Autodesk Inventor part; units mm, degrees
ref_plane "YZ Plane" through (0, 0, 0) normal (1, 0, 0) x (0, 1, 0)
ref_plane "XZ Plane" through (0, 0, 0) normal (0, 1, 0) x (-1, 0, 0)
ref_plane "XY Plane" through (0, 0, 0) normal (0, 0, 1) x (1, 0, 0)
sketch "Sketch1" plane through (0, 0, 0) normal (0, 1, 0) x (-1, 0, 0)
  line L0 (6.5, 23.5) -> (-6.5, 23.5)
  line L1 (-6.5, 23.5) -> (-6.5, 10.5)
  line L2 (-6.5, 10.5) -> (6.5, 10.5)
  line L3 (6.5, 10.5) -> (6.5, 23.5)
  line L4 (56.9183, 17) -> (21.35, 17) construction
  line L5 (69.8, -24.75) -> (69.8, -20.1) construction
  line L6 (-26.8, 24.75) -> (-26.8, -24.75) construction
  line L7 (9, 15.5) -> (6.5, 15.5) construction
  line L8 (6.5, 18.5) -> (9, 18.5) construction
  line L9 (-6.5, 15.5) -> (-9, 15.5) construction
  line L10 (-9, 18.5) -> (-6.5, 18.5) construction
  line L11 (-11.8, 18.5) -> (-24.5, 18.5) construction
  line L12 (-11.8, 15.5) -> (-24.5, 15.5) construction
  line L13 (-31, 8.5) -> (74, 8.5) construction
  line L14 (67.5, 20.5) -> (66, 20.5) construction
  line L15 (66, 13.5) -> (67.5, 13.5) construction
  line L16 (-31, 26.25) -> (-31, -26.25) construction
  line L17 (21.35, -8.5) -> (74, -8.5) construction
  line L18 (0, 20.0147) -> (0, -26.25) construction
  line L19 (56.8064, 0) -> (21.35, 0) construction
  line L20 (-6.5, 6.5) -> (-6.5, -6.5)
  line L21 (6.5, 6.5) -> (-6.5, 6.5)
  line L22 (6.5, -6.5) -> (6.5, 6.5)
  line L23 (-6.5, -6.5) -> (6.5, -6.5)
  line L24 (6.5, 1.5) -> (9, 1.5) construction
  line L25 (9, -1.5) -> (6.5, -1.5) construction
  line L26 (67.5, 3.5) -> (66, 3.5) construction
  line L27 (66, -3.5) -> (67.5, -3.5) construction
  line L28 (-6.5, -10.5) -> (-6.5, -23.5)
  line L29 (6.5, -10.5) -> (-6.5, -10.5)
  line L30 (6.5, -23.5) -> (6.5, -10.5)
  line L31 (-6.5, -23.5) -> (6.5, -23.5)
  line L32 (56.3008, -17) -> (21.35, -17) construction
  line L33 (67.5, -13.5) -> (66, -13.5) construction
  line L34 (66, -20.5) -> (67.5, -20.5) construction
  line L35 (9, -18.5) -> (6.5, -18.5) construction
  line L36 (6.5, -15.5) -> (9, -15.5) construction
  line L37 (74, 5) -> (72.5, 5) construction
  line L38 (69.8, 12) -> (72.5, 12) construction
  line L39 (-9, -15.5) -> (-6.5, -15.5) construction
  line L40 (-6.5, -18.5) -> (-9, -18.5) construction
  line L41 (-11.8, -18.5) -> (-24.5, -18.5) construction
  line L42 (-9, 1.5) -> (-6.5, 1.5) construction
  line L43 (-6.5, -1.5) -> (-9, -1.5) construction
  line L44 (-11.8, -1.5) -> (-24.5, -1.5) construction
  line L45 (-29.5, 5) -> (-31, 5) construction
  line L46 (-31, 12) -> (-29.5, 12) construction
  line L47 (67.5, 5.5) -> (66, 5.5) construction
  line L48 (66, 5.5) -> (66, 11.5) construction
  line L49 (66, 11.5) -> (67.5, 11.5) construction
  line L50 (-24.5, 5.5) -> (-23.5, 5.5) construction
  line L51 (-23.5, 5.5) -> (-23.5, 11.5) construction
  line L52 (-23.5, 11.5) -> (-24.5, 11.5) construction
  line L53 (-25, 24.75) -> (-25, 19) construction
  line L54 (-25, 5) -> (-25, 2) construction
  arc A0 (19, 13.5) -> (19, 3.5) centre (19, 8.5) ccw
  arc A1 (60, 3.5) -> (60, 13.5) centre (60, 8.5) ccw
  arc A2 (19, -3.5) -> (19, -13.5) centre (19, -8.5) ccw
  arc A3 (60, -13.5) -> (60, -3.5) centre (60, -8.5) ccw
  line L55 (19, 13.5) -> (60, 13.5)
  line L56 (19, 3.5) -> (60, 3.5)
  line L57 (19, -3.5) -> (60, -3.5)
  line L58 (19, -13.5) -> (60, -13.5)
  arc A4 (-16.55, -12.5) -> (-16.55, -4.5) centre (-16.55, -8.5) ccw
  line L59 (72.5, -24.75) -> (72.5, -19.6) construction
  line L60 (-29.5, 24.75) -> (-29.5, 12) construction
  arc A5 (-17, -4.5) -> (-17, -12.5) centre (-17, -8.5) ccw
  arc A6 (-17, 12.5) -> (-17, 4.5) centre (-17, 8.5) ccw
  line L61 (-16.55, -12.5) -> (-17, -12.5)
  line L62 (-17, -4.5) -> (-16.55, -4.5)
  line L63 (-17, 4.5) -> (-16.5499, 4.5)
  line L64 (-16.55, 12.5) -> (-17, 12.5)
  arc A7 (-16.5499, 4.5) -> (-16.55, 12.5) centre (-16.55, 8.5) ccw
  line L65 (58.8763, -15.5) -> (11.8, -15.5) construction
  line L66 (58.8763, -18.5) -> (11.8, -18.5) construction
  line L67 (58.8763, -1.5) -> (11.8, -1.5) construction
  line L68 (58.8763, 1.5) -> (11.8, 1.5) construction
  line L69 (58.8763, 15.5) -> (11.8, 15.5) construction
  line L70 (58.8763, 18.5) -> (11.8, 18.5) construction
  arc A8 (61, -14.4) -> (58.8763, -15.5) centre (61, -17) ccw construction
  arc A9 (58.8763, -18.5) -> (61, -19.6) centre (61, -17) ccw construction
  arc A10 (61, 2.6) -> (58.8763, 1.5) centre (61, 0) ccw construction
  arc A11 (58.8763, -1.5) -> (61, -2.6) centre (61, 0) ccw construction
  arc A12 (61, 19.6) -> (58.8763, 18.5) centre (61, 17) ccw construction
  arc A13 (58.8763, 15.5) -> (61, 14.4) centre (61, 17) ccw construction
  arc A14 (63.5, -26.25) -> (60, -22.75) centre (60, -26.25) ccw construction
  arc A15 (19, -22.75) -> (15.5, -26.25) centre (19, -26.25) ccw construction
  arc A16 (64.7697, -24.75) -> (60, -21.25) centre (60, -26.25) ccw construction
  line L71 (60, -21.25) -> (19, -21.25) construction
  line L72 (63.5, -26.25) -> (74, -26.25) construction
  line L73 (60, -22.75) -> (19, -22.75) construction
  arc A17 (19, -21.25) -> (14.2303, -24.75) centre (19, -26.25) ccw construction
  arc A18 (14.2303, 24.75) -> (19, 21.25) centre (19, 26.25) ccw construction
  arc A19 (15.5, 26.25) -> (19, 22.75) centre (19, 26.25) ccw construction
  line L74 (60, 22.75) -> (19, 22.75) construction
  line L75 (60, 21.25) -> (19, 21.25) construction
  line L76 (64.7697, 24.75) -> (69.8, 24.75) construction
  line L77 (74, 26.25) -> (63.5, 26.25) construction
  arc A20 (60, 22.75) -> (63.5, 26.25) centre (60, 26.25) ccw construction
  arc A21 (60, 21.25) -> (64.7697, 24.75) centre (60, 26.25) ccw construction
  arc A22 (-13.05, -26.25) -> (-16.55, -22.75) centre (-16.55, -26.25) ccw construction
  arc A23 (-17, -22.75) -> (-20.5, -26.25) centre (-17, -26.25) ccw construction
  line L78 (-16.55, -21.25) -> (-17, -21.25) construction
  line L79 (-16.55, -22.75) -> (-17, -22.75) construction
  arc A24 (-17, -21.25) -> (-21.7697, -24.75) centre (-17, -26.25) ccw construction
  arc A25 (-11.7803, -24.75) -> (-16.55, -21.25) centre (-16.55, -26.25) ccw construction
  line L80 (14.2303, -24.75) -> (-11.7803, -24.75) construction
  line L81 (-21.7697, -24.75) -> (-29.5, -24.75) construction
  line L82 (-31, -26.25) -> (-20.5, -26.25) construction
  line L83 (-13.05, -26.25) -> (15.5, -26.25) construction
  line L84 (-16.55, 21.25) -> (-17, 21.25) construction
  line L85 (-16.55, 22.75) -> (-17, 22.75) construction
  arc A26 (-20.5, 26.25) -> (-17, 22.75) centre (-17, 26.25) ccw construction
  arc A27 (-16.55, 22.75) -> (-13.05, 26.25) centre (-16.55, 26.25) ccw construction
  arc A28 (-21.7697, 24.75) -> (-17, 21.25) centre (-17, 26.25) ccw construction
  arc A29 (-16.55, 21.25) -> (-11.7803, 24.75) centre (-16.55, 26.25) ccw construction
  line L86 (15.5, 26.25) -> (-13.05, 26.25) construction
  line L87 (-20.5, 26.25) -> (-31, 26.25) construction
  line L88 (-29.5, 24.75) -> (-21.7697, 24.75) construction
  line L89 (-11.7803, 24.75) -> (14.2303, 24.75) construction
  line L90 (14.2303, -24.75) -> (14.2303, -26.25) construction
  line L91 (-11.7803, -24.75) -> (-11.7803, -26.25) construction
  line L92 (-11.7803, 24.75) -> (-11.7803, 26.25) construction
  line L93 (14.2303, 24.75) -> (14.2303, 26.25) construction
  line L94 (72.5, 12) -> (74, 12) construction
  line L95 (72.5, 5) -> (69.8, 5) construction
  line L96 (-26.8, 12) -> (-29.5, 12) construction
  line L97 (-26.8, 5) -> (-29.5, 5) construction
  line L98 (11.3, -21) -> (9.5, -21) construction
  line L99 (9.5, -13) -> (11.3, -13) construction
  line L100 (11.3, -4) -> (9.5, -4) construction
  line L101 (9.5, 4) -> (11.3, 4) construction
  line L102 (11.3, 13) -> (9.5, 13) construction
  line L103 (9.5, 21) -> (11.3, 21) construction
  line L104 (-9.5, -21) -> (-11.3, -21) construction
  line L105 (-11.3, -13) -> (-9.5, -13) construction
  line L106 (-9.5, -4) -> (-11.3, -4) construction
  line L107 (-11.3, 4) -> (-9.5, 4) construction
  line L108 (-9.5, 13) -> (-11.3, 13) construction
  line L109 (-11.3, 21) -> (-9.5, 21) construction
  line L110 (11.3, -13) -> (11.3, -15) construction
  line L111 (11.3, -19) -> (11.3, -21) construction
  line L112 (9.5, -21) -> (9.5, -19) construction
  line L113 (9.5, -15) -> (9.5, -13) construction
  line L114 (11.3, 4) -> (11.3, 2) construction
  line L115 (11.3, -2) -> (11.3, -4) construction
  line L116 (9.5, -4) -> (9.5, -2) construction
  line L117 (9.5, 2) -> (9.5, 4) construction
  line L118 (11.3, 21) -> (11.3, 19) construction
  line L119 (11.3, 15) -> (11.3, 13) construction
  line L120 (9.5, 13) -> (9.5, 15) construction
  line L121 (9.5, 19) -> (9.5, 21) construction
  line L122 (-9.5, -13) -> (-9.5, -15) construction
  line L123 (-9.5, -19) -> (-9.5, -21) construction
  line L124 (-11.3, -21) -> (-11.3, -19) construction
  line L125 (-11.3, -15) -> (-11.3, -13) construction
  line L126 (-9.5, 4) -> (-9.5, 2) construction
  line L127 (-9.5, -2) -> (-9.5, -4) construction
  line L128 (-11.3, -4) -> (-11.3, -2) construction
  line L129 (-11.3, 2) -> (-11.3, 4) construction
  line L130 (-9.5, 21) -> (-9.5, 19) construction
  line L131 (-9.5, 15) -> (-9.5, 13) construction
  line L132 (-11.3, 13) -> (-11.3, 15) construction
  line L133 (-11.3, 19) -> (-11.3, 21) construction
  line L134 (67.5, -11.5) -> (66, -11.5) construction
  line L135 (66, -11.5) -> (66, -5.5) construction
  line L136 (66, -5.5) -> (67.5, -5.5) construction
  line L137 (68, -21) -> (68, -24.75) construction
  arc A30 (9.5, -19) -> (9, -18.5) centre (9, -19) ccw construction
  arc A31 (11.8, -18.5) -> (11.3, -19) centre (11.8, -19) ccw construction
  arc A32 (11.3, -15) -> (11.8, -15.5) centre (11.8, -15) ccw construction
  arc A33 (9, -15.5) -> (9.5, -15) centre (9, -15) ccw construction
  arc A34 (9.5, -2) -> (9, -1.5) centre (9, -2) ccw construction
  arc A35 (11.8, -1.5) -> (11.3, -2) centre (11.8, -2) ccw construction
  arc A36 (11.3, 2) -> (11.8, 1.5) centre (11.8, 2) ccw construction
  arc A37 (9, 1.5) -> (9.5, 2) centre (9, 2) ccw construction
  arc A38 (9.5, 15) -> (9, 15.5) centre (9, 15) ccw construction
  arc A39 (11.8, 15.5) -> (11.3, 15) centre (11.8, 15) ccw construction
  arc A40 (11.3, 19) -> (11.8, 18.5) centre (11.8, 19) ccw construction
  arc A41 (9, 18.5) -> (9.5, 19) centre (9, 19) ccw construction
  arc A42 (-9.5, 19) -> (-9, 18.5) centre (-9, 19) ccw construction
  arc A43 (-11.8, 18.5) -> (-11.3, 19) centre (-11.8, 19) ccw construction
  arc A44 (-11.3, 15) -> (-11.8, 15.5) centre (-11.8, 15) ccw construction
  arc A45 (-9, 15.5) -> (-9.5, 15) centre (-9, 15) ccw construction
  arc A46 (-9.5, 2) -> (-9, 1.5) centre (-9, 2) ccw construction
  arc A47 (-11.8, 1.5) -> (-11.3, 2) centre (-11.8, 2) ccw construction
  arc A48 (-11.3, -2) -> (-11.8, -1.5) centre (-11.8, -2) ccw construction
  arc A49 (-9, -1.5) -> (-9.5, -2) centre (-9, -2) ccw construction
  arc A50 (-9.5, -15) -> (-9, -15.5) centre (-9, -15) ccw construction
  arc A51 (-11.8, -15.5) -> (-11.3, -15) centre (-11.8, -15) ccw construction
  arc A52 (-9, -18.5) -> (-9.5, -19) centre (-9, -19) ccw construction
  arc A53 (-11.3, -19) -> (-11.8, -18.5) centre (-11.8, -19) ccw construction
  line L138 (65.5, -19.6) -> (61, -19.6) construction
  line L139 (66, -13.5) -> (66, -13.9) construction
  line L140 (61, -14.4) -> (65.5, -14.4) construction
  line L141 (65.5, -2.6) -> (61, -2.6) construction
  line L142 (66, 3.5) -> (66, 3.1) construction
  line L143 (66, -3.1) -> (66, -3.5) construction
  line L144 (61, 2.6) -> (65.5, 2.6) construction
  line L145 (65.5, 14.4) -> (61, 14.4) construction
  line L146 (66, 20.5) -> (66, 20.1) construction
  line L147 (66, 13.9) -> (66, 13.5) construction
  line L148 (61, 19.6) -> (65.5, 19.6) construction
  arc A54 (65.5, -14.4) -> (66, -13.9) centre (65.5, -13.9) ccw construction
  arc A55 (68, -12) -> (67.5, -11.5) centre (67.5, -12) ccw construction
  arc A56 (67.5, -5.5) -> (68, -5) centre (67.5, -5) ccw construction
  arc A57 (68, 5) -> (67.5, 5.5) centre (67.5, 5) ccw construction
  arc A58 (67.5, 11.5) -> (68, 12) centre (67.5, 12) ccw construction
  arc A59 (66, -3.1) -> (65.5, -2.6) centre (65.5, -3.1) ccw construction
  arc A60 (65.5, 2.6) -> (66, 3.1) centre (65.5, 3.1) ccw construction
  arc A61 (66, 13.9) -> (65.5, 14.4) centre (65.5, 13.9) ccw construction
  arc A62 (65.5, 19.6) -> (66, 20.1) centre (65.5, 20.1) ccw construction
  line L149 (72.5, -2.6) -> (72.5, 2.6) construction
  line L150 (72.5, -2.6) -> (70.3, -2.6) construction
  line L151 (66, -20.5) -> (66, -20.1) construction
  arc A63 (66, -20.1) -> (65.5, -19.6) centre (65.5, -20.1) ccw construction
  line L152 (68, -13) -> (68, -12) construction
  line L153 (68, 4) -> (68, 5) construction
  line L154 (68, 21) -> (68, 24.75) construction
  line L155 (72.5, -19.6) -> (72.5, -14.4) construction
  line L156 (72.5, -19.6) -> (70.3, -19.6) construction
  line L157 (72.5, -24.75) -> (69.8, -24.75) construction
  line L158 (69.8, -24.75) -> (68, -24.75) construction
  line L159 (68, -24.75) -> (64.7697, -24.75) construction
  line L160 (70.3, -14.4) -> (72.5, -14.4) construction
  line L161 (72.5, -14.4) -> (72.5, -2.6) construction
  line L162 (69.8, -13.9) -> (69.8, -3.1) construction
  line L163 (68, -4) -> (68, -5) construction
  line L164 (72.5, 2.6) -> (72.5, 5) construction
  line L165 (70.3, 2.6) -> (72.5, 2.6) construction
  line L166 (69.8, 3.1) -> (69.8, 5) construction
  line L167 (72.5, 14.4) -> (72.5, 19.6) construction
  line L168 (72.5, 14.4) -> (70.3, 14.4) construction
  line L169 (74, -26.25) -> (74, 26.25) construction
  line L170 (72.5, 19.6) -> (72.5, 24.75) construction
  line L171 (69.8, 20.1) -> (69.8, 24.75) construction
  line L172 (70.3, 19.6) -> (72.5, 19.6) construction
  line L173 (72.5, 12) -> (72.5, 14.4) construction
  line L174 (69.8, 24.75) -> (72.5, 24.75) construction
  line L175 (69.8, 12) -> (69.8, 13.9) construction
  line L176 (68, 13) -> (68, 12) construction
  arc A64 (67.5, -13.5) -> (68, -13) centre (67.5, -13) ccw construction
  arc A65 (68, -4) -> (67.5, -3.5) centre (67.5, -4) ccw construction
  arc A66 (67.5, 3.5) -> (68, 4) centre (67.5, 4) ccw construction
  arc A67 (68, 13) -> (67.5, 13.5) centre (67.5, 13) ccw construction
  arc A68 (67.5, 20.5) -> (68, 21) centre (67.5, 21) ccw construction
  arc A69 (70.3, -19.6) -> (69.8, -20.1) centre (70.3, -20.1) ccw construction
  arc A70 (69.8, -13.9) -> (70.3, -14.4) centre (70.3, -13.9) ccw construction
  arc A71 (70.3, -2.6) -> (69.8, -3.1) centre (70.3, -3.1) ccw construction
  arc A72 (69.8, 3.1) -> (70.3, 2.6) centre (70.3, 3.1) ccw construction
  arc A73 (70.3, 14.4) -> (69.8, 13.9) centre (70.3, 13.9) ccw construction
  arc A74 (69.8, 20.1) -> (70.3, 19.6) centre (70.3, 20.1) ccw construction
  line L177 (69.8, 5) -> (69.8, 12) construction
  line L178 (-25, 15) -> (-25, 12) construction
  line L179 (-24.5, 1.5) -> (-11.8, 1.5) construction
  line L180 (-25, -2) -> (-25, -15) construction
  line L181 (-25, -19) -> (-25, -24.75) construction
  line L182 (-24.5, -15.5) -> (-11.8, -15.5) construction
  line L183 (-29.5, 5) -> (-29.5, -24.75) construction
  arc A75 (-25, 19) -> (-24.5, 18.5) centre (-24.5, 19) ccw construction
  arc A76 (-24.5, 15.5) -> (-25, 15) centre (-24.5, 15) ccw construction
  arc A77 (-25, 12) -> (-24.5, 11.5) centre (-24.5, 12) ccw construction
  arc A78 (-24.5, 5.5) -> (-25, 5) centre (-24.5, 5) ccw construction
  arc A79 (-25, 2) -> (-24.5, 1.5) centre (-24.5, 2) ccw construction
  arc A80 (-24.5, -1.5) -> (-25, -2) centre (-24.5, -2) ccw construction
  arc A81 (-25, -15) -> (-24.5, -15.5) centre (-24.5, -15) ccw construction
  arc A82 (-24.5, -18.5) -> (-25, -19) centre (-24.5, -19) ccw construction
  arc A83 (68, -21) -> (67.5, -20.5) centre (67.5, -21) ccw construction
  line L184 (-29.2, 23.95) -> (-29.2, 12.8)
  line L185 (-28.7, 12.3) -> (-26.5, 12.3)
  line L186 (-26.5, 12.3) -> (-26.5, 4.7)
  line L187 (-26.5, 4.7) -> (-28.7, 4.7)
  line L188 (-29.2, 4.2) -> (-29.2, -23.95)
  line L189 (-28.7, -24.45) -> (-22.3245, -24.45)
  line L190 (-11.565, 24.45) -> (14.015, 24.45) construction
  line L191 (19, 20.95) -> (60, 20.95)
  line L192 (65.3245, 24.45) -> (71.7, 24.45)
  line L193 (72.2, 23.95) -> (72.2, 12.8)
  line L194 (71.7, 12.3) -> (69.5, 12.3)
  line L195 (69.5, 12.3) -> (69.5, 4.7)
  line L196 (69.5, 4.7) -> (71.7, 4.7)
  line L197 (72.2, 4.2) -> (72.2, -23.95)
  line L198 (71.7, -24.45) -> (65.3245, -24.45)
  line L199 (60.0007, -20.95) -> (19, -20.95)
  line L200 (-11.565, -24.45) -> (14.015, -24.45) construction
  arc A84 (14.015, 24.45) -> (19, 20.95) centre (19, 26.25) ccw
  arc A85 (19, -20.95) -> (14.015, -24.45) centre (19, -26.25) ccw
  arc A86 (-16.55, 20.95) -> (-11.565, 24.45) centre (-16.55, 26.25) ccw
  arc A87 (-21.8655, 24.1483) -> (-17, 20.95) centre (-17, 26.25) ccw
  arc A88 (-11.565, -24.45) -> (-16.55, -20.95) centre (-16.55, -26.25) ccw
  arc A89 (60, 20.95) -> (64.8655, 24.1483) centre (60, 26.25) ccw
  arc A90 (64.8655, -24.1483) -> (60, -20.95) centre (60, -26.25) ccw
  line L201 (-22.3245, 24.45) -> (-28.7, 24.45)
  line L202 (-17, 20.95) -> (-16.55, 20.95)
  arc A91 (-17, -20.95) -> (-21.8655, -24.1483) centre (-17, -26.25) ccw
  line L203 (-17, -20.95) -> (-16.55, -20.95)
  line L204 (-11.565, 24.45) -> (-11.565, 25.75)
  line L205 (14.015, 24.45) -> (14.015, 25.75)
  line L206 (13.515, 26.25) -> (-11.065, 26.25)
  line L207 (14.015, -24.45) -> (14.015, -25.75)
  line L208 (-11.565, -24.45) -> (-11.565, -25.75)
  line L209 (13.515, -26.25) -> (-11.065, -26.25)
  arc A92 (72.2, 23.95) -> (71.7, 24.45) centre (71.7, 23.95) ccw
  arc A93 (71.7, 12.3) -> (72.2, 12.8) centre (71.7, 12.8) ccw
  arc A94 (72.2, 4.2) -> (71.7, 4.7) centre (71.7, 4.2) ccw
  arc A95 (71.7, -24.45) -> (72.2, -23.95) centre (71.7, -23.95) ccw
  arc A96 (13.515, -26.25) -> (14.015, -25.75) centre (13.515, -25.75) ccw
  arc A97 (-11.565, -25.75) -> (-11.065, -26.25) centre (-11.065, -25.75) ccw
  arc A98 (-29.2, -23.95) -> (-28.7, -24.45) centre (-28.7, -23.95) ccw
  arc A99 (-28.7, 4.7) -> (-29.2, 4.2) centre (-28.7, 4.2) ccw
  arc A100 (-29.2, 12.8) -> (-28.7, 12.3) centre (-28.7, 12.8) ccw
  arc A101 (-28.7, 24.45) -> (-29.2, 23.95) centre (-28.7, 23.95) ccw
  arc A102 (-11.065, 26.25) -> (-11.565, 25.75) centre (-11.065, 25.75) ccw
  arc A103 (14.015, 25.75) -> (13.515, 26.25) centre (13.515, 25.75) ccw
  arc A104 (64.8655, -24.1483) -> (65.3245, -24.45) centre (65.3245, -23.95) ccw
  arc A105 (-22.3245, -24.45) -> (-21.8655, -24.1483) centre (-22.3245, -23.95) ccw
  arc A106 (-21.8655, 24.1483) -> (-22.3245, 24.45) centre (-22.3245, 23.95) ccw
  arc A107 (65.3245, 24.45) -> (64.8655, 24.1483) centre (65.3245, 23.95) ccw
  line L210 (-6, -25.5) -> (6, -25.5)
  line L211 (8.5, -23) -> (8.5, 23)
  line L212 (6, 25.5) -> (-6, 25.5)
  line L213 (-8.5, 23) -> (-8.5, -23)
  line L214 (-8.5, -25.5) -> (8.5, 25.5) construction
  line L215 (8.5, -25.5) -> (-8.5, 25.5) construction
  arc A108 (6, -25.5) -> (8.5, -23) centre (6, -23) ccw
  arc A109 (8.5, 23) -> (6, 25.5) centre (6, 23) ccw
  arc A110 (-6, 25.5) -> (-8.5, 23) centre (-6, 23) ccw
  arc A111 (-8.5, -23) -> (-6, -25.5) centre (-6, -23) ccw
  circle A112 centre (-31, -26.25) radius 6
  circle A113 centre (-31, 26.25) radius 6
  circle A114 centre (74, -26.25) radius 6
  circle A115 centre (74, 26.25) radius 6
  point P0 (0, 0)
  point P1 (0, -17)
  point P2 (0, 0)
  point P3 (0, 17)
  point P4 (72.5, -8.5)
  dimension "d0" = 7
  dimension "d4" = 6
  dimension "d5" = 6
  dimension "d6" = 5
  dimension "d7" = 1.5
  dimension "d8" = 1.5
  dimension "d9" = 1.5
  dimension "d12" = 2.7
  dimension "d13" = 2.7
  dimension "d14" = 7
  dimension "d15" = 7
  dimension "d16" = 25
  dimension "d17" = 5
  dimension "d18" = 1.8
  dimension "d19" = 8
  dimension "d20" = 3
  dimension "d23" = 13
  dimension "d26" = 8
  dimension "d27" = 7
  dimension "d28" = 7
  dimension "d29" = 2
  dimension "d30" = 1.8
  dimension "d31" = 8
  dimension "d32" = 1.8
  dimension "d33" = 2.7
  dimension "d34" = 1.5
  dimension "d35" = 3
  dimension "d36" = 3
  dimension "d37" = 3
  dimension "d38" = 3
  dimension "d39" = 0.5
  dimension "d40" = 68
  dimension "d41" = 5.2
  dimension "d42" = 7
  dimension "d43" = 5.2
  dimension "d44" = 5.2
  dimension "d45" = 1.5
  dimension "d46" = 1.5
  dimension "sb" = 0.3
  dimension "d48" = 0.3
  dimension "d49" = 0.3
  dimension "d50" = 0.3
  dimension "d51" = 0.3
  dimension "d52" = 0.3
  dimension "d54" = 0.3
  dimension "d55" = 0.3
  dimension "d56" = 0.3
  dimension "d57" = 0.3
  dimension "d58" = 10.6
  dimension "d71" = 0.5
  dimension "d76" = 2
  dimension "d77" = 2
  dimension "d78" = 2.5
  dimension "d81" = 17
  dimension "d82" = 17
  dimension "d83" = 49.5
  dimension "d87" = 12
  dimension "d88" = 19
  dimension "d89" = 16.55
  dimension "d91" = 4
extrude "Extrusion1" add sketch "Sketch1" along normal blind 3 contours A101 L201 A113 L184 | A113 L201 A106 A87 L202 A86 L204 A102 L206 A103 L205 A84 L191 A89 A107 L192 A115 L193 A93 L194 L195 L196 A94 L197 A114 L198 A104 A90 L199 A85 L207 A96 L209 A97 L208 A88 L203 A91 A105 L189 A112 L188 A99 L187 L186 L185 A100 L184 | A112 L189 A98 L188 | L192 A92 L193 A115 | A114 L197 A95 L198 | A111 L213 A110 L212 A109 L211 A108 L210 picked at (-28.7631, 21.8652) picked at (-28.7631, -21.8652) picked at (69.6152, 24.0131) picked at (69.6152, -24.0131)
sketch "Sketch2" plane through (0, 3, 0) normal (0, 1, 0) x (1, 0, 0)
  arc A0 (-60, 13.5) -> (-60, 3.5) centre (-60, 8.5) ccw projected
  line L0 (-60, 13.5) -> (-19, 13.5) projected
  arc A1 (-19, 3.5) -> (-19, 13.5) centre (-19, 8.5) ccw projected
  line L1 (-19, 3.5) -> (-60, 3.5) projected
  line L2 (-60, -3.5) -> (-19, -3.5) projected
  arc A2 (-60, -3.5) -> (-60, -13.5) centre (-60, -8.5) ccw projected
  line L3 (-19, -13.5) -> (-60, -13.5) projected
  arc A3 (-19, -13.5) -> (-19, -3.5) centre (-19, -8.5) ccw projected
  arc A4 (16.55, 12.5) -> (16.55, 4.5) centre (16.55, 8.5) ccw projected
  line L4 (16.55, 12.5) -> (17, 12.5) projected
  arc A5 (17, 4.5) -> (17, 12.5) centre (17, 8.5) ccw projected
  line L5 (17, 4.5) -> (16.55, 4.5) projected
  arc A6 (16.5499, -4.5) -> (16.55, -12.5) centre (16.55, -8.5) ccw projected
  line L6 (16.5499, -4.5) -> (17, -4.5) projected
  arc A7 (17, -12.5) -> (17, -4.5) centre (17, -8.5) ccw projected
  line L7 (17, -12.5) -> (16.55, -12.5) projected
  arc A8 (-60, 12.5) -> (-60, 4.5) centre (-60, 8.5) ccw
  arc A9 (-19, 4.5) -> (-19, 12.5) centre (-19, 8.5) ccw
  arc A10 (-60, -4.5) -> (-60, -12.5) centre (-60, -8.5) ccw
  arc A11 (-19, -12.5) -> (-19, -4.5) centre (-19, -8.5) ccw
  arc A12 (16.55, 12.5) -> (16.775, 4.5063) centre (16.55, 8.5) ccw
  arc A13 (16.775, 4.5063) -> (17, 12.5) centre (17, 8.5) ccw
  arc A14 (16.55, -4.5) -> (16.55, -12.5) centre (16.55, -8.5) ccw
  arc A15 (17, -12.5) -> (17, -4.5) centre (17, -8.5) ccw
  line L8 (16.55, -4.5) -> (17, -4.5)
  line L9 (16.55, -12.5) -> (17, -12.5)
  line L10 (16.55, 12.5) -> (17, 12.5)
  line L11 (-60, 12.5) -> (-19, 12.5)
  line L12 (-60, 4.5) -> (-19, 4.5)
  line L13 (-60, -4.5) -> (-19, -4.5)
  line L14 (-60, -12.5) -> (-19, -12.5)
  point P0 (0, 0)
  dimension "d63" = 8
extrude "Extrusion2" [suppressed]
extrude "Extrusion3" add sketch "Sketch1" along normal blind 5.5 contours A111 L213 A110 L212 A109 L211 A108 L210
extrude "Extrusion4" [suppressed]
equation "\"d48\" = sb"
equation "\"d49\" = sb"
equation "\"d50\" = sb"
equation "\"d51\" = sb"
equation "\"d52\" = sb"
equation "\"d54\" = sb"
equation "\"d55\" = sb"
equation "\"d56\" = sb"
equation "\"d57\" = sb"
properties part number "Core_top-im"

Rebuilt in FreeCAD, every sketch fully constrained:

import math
import FreeCAD as App
import Part
import Sketcher

V = App.Vector
Q = App.Units.Quantity


def add_polygon(sketch, points):
    """Adds a closed chain of lines whose ends are joined by coincident constraints."""
    first, n = sketch.GeometryCount, len(points)
    for a, b in zip(points, points[1:] + points[:1]):
        sketch.addGeometry(Part.LineSegment(App.Vector(*a, 0), App.Vector(*b, 0)), False)
    for i in range(n):
        sketch.addConstraint(Sketcher.Constraint("Coincident", first + i, 2, first + (i + 1) % n, 1))

doc = App.newDocument("Part")
body = doc.addObject("PartDesign::Body", "Body")

# Sketch on XZ plane
sketch1 = body.newObject("Sketcher::SketchObject", "Sketch")
sketch1.AttachmentSupport = (doc.getObject("XZ_Plane"), [""])
sketch1.MapMode = "FlatFace"
sketch1.addGeometry(Part.ArcOfCircle(Part.Circle(V(28.7, 23.95, 0), V(0, 0, 1), 0.5), math.radians(0), math.radians(90)), False)  # 0
sketch1.addGeometry(Part.LineSegment(V(29.2, 23.95, 0), V(29.2, 12.8, 0)), False)  # 1
sketch1.addGeometry(Part.ArcOfCircle(Part.Circle(V(28.7, 12.8, 0), V(0, 0, 1), 0.5), math.radians(-90), math.radians(0)), False)  # 2
sketch1.addGeometry(Part.LineSegment(V(28.7, 12.3, 0), V(26.5, 12.3, 0)), False)  # 3
sketch1.addGeometry(Part.LineSegment(V(26.5, 12.3, 0), V(26.5, 4.7, 0)), False)  # 4
sketch1.addGeometry(Part.LineSegment(V(26.5, 4.7, 0), V(28.7, 4.7, 0)), False)  # 5
sketch1.addGeometry(Part.ArcOfCircle(Part.Circle(V(28.7, 4.2, 0), V(0, 0, 1), 0.5), math.radians(0), math.radians(90)), False)  # 6
sketch1.addGeometry(Part.LineSegment(V(29.2, 4.2, 0), V(29.2, -23.95, 0)), False)  # 7
sketch1.addGeometry(Part.ArcOfCircle(Part.Circle(V(28.7, -23.95, 0), V(0, 0, 1), 0.5), math.radians(-90), math.radians(0)), False)  # 8
sketch1.addGeometry(Part.LineSegment(V(28.7, -24.45, 0), V(22.32, -24.45, 0)), False)  # 9
sketch1.addGeometry(Part.ArcOfCircle(Part.Circle(V(22.32, -23.95, 0), V(0, 0, 1), 0.5), math.radians(-157), math.radians(-90)), False)  # 10
sketch1.addGeometry(Part.ArcOfCircle(Part.Circle(V(17, -26.25, 0), V(0, 0, 1), 5.3), math.radians(23), math.radians(90)), False)  # 11
sketch1.addGeometry(Part.LineSegment(V(17, -20.95, 0), V(16.55, -20.95, 0)), False)  # 12
sketch1.addGeometry(Part.ArcOfCircle(Part.Circle(V(16.55, -26.25, 0), V(0, 0, 1), 5.3), math.radians(90), math.radians(160)), False)  # 13
sketch1.addGeometry(Part.LineSegment(V(11.56, -24.45, 0), V(11.56, -25.75, 0)), False)  # 14
sketch1.addGeometry(Part.ArcOfCircle(Part.Circle(V(11.06, -25.75, 0), V(0, 0, 1), 0.5), math.radians(-90), math.radians(0)), False)  # 15
sketch1.addGeometry(Part.LineSegment(V(11.06, -26.25, 0), V(-13.52, -26.25, 0)), False)  # 16
sketch1.addGeometry(Part.ArcOfCircle(Part.Circle(V(-13.52, -25.75, 0), V(0, 0, 1), 0.5), math.radians(180), math.radians(270)), False)  # 17
sketch1.addGeometry(Part.LineSegment(V(-14.02, -25.75, 0), V(-14.02, -24.45, 0)), False)  # 18
sketch1.addGeometry(Part.ArcOfCircle(Part.Circle(V(-19, -26.25, 0), V(0, 0, 1), 5.3), math.radians(20), math.radians(90)), False)  # 19
sketch1.addGeometry(Part.LineSegment(V(-19, -20.95, 0), V(-60, -20.95, 0)), False)  # 20
sketch1.addGeometry(Part.ArcOfCircle(Part.Circle(V(-60, -26.25, 0), V(0, 0, 1), 5.3), math.radians(90), math.radians(157)), False)  # 21
sketch1.addGeometry(Part.ArcOfCircle(Part.Circle(V(-65.32, -23.95, 0), V(0, 0, 1), 0.5), math.radians(-90), math.radians(-23)), False)  # 22
sketch1.addGeometry(Part.LineSegment(V(-65.32, -24.45, 0), V(-71.7, -24.45, 0)), False)  # 23
sketch1.addGeometry(Part.ArcOfCircle(Part.Circle(V(-71.7, -23.95, 0), V(0, 0, 1), 0.5), math.radians(180), math.radians(270)), False)  # 24
sketch1.addGeometry(Part.LineSegment(V(-72.2, -23.95, 0), V(-72.2, 4.2, 0)), False)  # 25
sketch1.addGeometry(Part.ArcOfCircle(Part.Circle(V(-71.7, 4.2, 0), V(0, 0, 1), 0.5), math.radians(90), math.radians(180)), False)  # 26
sketch1.addGeometry(Part.LineSegment(V(-71.7, 4.7, 0), V(-69.5, 4.7, 0)), False)  # 27
sketch1.addGeometry(Part.LineSegment(V(-69.5, 4.7, 0), V(-69.5, 12.3, 0)), False)  # 28
sketch1.addGeometry(Part.LineSegment(V(-69.5, 12.3, 0), V(-71.7, 12.3, 0)), False)  # 29
sketch1.addGeometry(Part.ArcOfCircle(Part.Circle(V(-71.7, 12.8, 0), V(0, 0, 1), 0.5), math.radians(180), math.radians(270)), False)  # 30
sketch1.addGeometry(Part.LineSegment(V(-72.2, 12.8, 0), V(-72.2, 23.95, 0)), False)  # 31
sketch1.addGeometry(Part.ArcOfCircle(Part.Circle(V(-71.7, 23.95, 0), V(0, 0, 1), 0.5), math.radians(90), math.radians(180)), False)  # 32
sketch1.addGeometry(Part.LineSegment(V(-71.7, 24.45, 0), V(-65.32, 24.45, 0)), False)  # 33
sketch1.addGeometry(Part.ArcOfCircle(Part.Circle(V(-65.32, 23.95, 0), V(0, 0, 1), 0.5), math.radians(23), math.radians(90)), False)  # 34
sketch1.addGeometry(Part.ArcOfCircle(Part.Circle(V(-60, 26.25, 0), V(0, 0, 1), 5.3), math.radians(-157), math.radians(-90)), False)  # 35
sketch1.addGeometry(Part.LineSegment(V(-60, 20.95, 0), V(-19, 20.95, 0)), False)  # 36
sketch1.addGeometry(Part.ArcOfCircle(Part.Circle(V(-19, 26.25, 0), V(0, 0, 1), 5.3), math.radians(-90), math.radians(-20)), False)  # 37
sketch1.addGeometry(Part.LineSegment(V(-14.02, 24.45, 0), V(-14.02, 25.75, 0)), False)  # 38
sketch1.addGeometry(Part.ArcOfCircle(Part.Circle(V(-13.52, 25.75, 0), V(0, 0, 1), 0.5), math.radians(90), math.radians(180)), False)  # 39
sketch1.addGeometry(Part.LineSegment(V(-13.52, 26.25, 0), V(11.06, 26.25, 0)), False)  # 40
sketch1.addGeometry(Part.ArcOfCircle(Part.Circle(V(11.06, 25.75, 0), V(0, 0, 1), 0.5), math.radians(0), math.radians(90)), False)  # 41
sketch1.addGeometry(Part.LineSegment(V(11.56, 25.75, 0), V(11.56, 24.45, 0)), False)  # 42
sketch1.addGeometry(Part.ArcOfCircle(Part.Circle(V(16.55, 26.25, 0), V(0, 0, 1), 5.3), math.radians(-160), math.radians(-90)), False)  # 43
sketch1.addGeometry(Part.LineSegment(V(16.55, 20.95, 0), V(17, 20.95, 0)), False)  # 44
sketch1.addGeometry(Part.ArcOfCircle(Part.Circle(V(17, 26.25, 0), V(0, 0, 1), 5.3), math.radians(-90), math.radians(-23)), False)  # 45
sketch1.addGeometry(Part.ArcOfCircle(Part.Circle(V(22.32, 23.95, 0), V(0, 0, 1), 0.5), math.radians(90), math.radians(157)), False)  # 46
sketch1.addGeometry(Part.LineSegment(V(22.32, 24.45, 0), V(28.7, 24.45, 0)), False)  # 47
sketch1.addGeometry(Part.LineSegment(V(-19, 13.5, 0), V(-60, 13.5, 0)), False)  # 48
sketch1.addGeometry(Part.ArcOfCircle(Part.Circle(V(-60, 8.5, 0), V(0, 0, 1), 5), math.radians(90), math.radians(270)), False)  # 49
sketch1.addGeometry(Part.LineSegment(V(-60, 3.5, 0), V(-19, 3.5, 0)), False)  # 50
sketch1.addGeometry(Part.ArcOfCircle(Part.Circle(V(-19, 8.5, 0), V(0, 0, 1), 5), math.radians(-90), math.radians(90)), False)  # 51
sketch1.addGeometry(Part.ArcOfCircle(Part.Circle(V(16.55, -8.5, 0), V(0, 0, 1), 4), math.radians(90), math.radians(270)), False)  # 52
sketch1.addGeometry(Part.LineSegment(V(16.55, -12.5, 0), V(17, -12.5, 0)), False)  # 53
sketch1.addGeometry(Part.ArcOfCircle(Part.Circle(V(17, -8.5, 0), V(0, 0, 1), 4), math.radians(-90), math.radians(90)), False)  # 54
sketch1.addGeometry(Part.LineSegment(V(17, -4.5, 0), V(16.55, -4.5, 0)), False)  # 55
sketch1.addGeometry(Part.ArcOfCircle(Part.Circle(V(-19, -8.5, 0), V(0, 0, 1), 5), math.radians(-90), math.radians(90)), False)  # 56
sketch1.addGeometry(Part.LineSegment(V(-19, -3.5, 0), V(-60, -3.5, 0)), False)  # 57
sketch1.addGeometry(Part.ArcOfCircle(Part.Circle(V(-60, -8.5, 0), V(0, 0, 1), 5), math.radians(90), math.radians(270)), False)  # 58
sketch1.addGeometry(Part.LineSegment(V(-60, -13.5, 0), V(-19, -13.5, 0)), False)  # 59
sketch1.addGeometry(Part.ArcOfCircle(Part.Circle(V(17, 8.5, 0), V(0, 0, 1), 4), math.radians(-90), math.radians(90)), False)  # 60
sketch1.addGeometry(Part.LineSegment(V(17, 12.5, 0), V(16.55, 12.5, 0)), False)  # 61
sketch1.addGeometry(Part.ArcOfCircle(Part.Circle(V(16.55, 8.5, 0), V(0, 0, 1), 4), math.radians(90), math.radians(270)), False)  # 62
sketch1.addGeometry(Part.LineSegment(V(16.55, 4.5, 0), V(17, 4.5, 0)), False)  # 63
add_polygon(sketch1, [(6.5, -6.5), (6.5, 6.5), (-6.5, 6.5), (-6.5, -6.5)])  # lines 64-67
add_polygon(sketch1, [(6.5, 23.5), (-6.5, 23.5), (-6.5, 10.5), (6.5, 10.5)])  # lines 68-71
add_polygon(sketch1, [(6.5, -23.5), (6.5, -10.5), (-6.5, -10.5), (-6.5, -23.5)])  # lines 72-75
sketch1.addConstraint(Sketcher.Constraint("Tangent", 0, 1, 1, 1))
sketch1.addConstraint(Sketcher.Constraint("Tangent", 1, 2, 2, 2))
sketch1.addConstraint(Sketcher.Constraint("Tangent", 2, 1, 3, 1))
sketch1.addConstraint(Sketcher.Constraint("Coincident", 3, 2, 4, 1))
sketch1.addConstraint(Sketcher.Constraint("Coincident", 4, 2, 5, 1))
sketch1.addConstraint(Sketcher.Constraint("Tangent", 5, 2, 6, 2))
sketch1.addConstraint(Sketcher.Constraint("Tangent", 6, 1, 7, 1))
sketch1.addConstraint(Sketcher.Constraint("Tangent", 7, 2, 8, 2))
sketch1.addConstraint(Sketcher.Constraint("Tangent", 8, 1, 9, 1))
sketch1.addConstraint(Sketcher.Constraint("Tangent", 9, 2, 10, 2))
sketch1.addConstraint(Sketcher.Constraint("Tangent", 10, 1, 11, 1))
sketch1.addConstraint(Sketcher.Constraint("Tangent", 11, 2, 12, 1))
sketch1.addConstraint(Sketcher.Constraint("Tangent", 12, 2, 13, 1))
sketch1.addConstraint(Sketcher.Constraint("Coincident", 13, 2, 14, 1))
sketch1.addConstraint(Sketcher.Constraint("Tangent", 14, 2, 15, 2))
sketch1.addConstraint(Sketcher.Constraint("Tangent", 15, 1, 16, 1))
sketch1.addConstraint(Sketcher.Constraint("Tangent", 16, 2, 17, 2))
sketch1.addConstraint(Sketcher.Constraint("Tangent", 17, 1, 18, 1))
sketch1.addConstraint(Sketcher.Constraint("Coincident", 18, 2, 19, 1))
sketch1.addConstraint(Sketcher.Constraint("Tangent", 19, 2, 20, 1))
sketch1.addConstraint(Sketcher.Constraint("Tangent", 20, 2, 21, 1))
sketch1.addConstraint(Sketcher.Constraint("Tangent", 21, 2, 22, 2))
sketch1.addConstraint(Sketcher.Constraint("Tangent", 22, 1, 23, 1))
sketch1.addConstraint(Sketcher.Constraint("Tangent", 23, 2, 24, 2))
sketch1.addConstraint(Sketcher.Constraint("Tangent", 24, 1, 25, 1))
sketch1.addConstraint(Sketcher.Constraint("Tangent", 25, 2, 26, 2))
sketch1.addConstraint(Sketcher.Constraint("Tangent", 26, 1, 27, 1))
sketch1.addConstraint(Sketcher.Constraint("Coincident", 27, 2, 28, 1))
sketch1.addConstraint(Sketcher.Constraint("Coincident", 28, 2, 29, 1))
sketch1.addConstraint(Sketcher.Constraint("Tangent", 29, 2, 30, 2))
sketch1.addConstraint(Sketcher.Constraint("Tangent", 30, 1, 31, 1))
sketch1.addConstraint(Sketcher.Constraint("Tangent", 31, 2, 32, 2))
sketch1.addConstraint(Sketcher.Constraint("Tangent", 32, 1, 33, 1))
sketch1.addConstraint(Sketcher.Constraint("Tangent", 33, 2, 34, 2))
sketch1.addConstraint(Sketcher.Constraint("Tangent", 34, 1, 35, 1))
sketch1.addConstraint(Sketcher.Constraint("Tangent", 35, 2, 36, 1))
sketch1.addConstraint(Sketcher.Constraint("Tangent", 36, 2, 37, 1))
sketch1.addConstraint(Sketcher.Constraint("Coincident", 37, 2, 38, 1))
sketch1.addConstraint(Sketcher.Constraint("Tangent", 38, 2, 39, 2))
sketch1.addConstraint(Sketcher.Constraint("Tangent", 39, 1, 40, 1))
sketch1.addConstraint(Sketcher.Constraint("Tangent", 40, 2, 41, 2))
sketch1.addConstraint(Sketcher.Constraint("Tangent", 41, 1, 42, 1))
sketch1.addConstraint(Sketcher.Constraint("Coincident", 42, 2, 43, 1))
sketch1.addConstraint(Sketcher.Constraint("Tangent", 43, 2, 44, 1))
sketch1.addConstraint(Sketcher.Constraint("Tangent", 44, 2, 45, 1))
sketch1.addConstraint(Sketcher.Constraint("Tangent", 45, 2, 46, 2))
sketch1.addConstraint(Sketcher.Constraint("Tangent", 46, 1, 47, 1))
sketch1.addConstraint(Sketcher.Constraint("Tangent", 47, 2, 0, 2))
sketch1.addConstraint(Sketcher.Constraint("Tangent", 48, 2, 49, 1))
sketch1.addConstraint(Sketcher.Constraint("Tangent", 49, 2, 50, 1))
sketch1.addConstraint(Sketcher.Constraint("Tangent", 50, 2, 51, 1))
sketch1.addConstraint(Sketcher.Constraint("Tangent", 51, 2, 48, 1))
sketch1.addConstraint(Sketcher.Constraint("Tangent", 52, 2, 53, 1))
sketch1.addConstraint(Sketcher.Constraint("Tangent", 53, 2, 54, 1))
sketch1.addConstraint(Sketcher.Constraint("Tangent", 54, 2, 55, 1))
sketch1.addConstraint(Sketcher.Constraint("Tangent", 55, 2, 52, 1))
sketch1.addConstraint(Sketcher.Constraint("Tangent", 56, 2, 57, 1))
sketch1.addConstraint(Sketcher.Constraint("Tangent", 57, 2, 58, 1))
sketch1.addConstraint(Sketcher.Constraint("Tangent", 58, 2, 59, 1))
sketch1.addConstraint(Sketcher.Constraint("Tangent", 59, 2, 56, 1))
sketch1.addConstraint(Sketcher.Constraint("Tangent", 60, 2, 61, 1))
sketch1.addConstraint(Sketcher.Constraint("Tangent", 61, 2, 62, 1))
sketch1.addConstraint(Sketcher.Constraint("Tangent", 62, 2, 63, 1))
sketch1.addConstraint(Sketcher.Constraint("Tangent", 63, 2, 60, 1))
sketch1.addConstraint(Sketcher.Constraint("Vertical", 1))
sketch1.addConstraint(Sketcher.Constraint("Horizontal", 3))
sketch1.addConstraint(Sketcher.Constraint("Vertical", 4))
sketch1.addConstraint(Sketcher.Constraint("Horizontal", 5))
sketch1.addConstraint(Sketcher.Constraint("Vertical", 7))
sketch1.addConstraint(Sketcher.Constraint("Horizontal", 9))
sketch1.addConstraint(Sketcher.Constraint("Horizontal", 12))
sketch1.addConstraint(Sketcher.Constraint("Vertical", 14))
sketch1.addConstraint(Sketcher.Constraint("Horizontal", 16))
sketch1.addConstraint(Sketcher.Constraint("Vertical", 18))
sketch1.addConstraint(Sketcher.Constraint("Horizontal", 20))
sketch1.addConstraint(Sketcher.Constraint("Horizontal", 23))
sketch1.addConstraint(Sketcher.Constraint("Vertical", 25))
sketch1.addConstraint(Sketcher.Constraint("Horizontal", 27))
sketch1.addConstraint(Sketcher.Constraint("Vertical", 28))
sketch1.addConstraint(Sketcher.Constraint("Horizontal", 29))
sketch1.addConstraint(Sketcher.Constraint("Vertical", 31))
sketch1.addConstraint(Sketcher.Constraint("Horizontal", 33))
sketch1.addConstraint(Sketcher.Constraint("Horizontal", 36))
sketch1.addConstraint(Sketcher.Constraint("Vertical", 38))
sketch1.addConstraint(Sketcher.Constraint("Horizontal", 40))
sketch1.addConstraint(Sketcher.Constraint("Vertical", 42))
sketch1.addConstraint(Sketcher.Constraint("Horizontal", 44))
sketch1.addConstraint(Sketcher.Constraint("Horizontal", 47))
sketch1.addConstraint(Sketcher.Constraint("Horizontal", 48))
sketch1.addConstraint(Sketcher.Constraint("Horizontal", 50))
sketch1.addConstraint(Sketcher.Constraint("Horizontal", 53))
sketch1.addConstraint(Sketcher.Constraint("Horizontal", 55))
sketch1.addConstraint(Sketcher.Constraint("Horizontal", 57))
sketch1.addConstraint(Sketcher.Constraint("Horizontal", 59))
sketch1.addConstraint(Sketcher.Constraint("Horizontal", 61))
sketch1.addConstraint(Sketcher.Constraint("Horizontal", 63))
sketch1.addConstraint(Sketcher.Constraint("Vertical", 64))
sketch1.addConstraint(Sketcher.Constraint("Horizontal", 65))
sketch1.addConstraint(Sketcher.Constraint("Vertical", 66))
sketch1.addConstraint(Sketcher.Constraint("Horizontal", 67))
sketch1.addConstraint(Sketcher.Constraint("Horizontal", 68))
sketch1.addConstraint(Sketcher.Constraint("Vertical", 69))
sketch1.addConstraint(Sketcher.Constraint("Horizontal", 70))
sketch1.addConstraint(Sketcher.Constraint("Vertical", 71))
sketch1.addConstraint(Sketcher.Constraint("Vertical", 72))
sketch1.addConstraint(Sketcher.Constraint("Horizontal", 73))
sketch1.addConstraint(Sketcher.Constraint("Vertical", 74))
sketch1.addConstraint(Sketcher.Constraint("Horizontal", 75))
sketch1.addConstraint(Sketcher.Constraint("Equal", 0, 2))
sketch1.addConstraint(Sketcher.Constraint("Equal", 2, 6))
sketch1.addConstraint(Sketcher.Constraint("Equal", 6, 8))
sketch1.addConstraint(Sketcher.Constraint("Equal", 8, 10))
sketch1.addConstraint(Sketcher.Constraint("Equal", 11, 13))
sketch1.addConstraint(Sketcher.Constraint("Equal", 10, 15))
sketch1.addConstraint(Sketcher.Constraint("Equal", 15, 17))
sketch1.addConstraint(Sketcher.Constraint("Equal", 13, 19))
sketch1.addConstraint(Sketcher.Constraint("Equal", 19, 21))
sketch1.addConstraint(Sketcher.Constraint("Equal", 17, 22))
sketch1.addConstraint(Sketcher.Constraint("Equal", 22, 24))
sketch1.addConstraint(Sketcher.Constraint("Equal", 24, 26))
sketch1.addConstraint(Sketcher.Constraint("Equal", 26, 30))
sketch1.addConstraint(Sketcher.Constraint("Equal", 30, 32))
sketch1.addConstraint(Sketcher.Constraint("Equal", 32, 34))
sketch1.addConstraint(Sketcher.Constraint("Equal", 21, 35))
sketch1.addConstraint(Sketcher.Constraint("Equal", 35, 37))
sketch1.addConstraint(Sketcher.Constraint("Equal", 34, 39))
sketch1.addConstraint(Sketcher.Constraint("Equal", 39, 41))
sketch1.addConstraint(Sketcher.Constraint("Equal", 37, 43))
sketch1.addConstraint(Sketcher.Constraint("Equal", 43, 45))
sketch1.addConstraint(Sketcher.Constraint("Equal", 41, 46))
sketch1.addConstraint(Sketcher.Constraint("Equal", 51, 56))
sketch1.addConstraint(Sketcher.Constraint("Equal", 54, 60))
sketch1.addConstraint(Sketcher.Constraint("Symmetric", 64, 2, 66, 2, -1, 1))
sketch1.addConstraint(Sketcher.Constraint("Symmetric", 69, 2, 72, 2, -1, 1))
sketch1.addConstraint(Sketcher.Constraint("Symmetric", 71, 2, 74, 2, -1, 1))
sketch1.addConstraint(Sketcher.Constraint("Symmetric", 0, 3, 8, 3, -1))
sketch1.addConstraint(Sketcher.Constraint("Symmetric", 24, 3, 32, 3, -1))
sketch1.addConstraint(Sketcher.Constraint("Symmetric", 21, 3, 35, 3, -1))
sketch1.addConstraint(Sketcher.Constraint("Symmetric", 17, 3, 39, 3, -1))
sketch1.addConstraint(Sketcher.Constraint("Symmetric", 13, 3, 43, 3, -1))
sketch1.addConstraint(Sketcher.Constraint("Symmetric", 51, 3, 56, 3, -1))
sketch1.addConstraint(Sketcher.Constraint("Symmetric", 54, 3, 60, 3, -1))
sketch1.addConstraint(Sketcher.Constraint("Horizontal", 13, 3, 19, 3))
sketch1.addConstraint(Sketcher.Constraint("Horizontal", 10, 3, 22, 3))
sketch1.addConstraint(Sketcher.Constraint("Horizontal", 6, 3, 26, 3))
sketch1.addConstraint(Sketcher.Constraint("Horizontal", 2, 3, 30, 3))
sketch1.addConstraint(Sketcher.Constraint("Horizontal", 54, 3, 56, 3))
sketch1.addConstraint(Sketcher.Constraint("Horizontal", 9, 2, 13, 2))
sketch1.addConstraint(Sketcher.Constraint("Horizontal", 21, 3, 15, 1))
sketch1.addConstraint(Sketcher.Constraint("Horizontal", 13, 2, 18, 2))
sketch1.addConstraint(Sketcher.Constraint("Horizontal", 33, 2, 37, 2))
sketch1.addConstraint(Sketcher.Constraint("Horizontal", 37, 2, 42, 2))
sketch1.addConstraint(Sketcher.Constraint("Vertical", 11, 3, 45, 3))
sketch1.addConstraint(Sketcher.Constraint("Vertical", 35, 3, 49, 3))
sketch1.addConstraint(Sketcher.Constraint("Vertical", 37, 3, 51, 3))
sketch1.addConstraint(Sketcher.Constraint("Vertical", 43, 3, 52, 3))
sketch1.addConstraint(Sketcher.Constraint("Vertical", 45, 3, 54, 3))
sketch1.addConstraint(Sketcher.Constraint("Vertical", 49, 3, 58, 3))
sketch1.addConstraint(Sketcher.Constraint("Vertical", 52, 3, 62, 3))
sketch1.addConstraint(Sketcher.Constraint("Vertical", 66, 2, 68, 2))
sketch1.addConstraint(Sketcher.Constraint("Vertical", 67, 2, 70, 2))
sketch1.addConstraint(Sketcher.Constraint("Equal", 9, 23))
sketch1.addConstraint(Sketcher.Constraint("Equal", 5, 27))
sketch1.addConstraint(Sketcher.Constraint("Equal", 75, 64))
sketch1.addConstraint(Sketcher.Constraint("Equal", 66, 69))
sketch1.addConstraint(Sketcher.Constraint("Radius", 49, Q("5 mm")))
sketch1.addConstraint(Sketcher.Constraint("Radius", 52, Q("4 mm")))
sketch1.addConstraint(Sketcher.Constraint("Radius", 0, Q("0.5 mm")))
sketch1.addConstraint(Sketcher.Constraint("Radius", 11, Q("5.3 mm")))
sketch1.addConstraint(Sketcher.Constraint("DistanceX", 65, 2, 65, 1, Q("13 mm")))
sketch1.addConstraint(Sketcher.Constraint("DistanceX", -1, 1, 11, 3, Q("17 mm")))
sketch1.addConstraint(Sketcher.Constraint("DistanceX", 19, 3, -1, 1, Q("19 mm")))
sketch1.addConstraint(Sketcher.Constraint("DistanceX", 36, 1, 36, 2, Q("41 mm")))
sketch1.addConstraint(Sketcher.Constraint("DistanceX", -1, 1, 13, 3, Q("16.55 mm")))
sketch1.addConstraint(Sketcher.Constraint("DistanceX", 3, 2, 3, 1, Q("2.2 mm")))
sketch1.addConstraint(Sketcher.Constraint("DistanceY", 4, 2, 4, 1, Q("7.6 mm")))
sketch1.addConstraint(Sketcher.Constraint("DistanceY", 14, 2, 14, 1, Q("1.3 mm")))
sketch1.addConstraint(Sketcher.Constraint("DistanceY", 1, 2, 1, 1, Q("11.15 mm")))
sketch1.addConstraint(Sketcher.Constraint("DistanceY", 7, 2, 7, 1, Q("28.15 mm")))
sketch1.addConstraint(Sketcher.Constraint("DistanceX", -1, 1, 0, 3, Q("28.7 mm")))
sketch1.addConstraint(Sketcher.Constraint("DistanceY", -1, 1, 49, 3, Q("8.5 mm")))
sketch1.addConstraint(Sketcher.Constraint("DistanceY", -1, 1, 68, 2, Q("23.5 mm")))
pad1 = body.newObject("PartDesign::Pad", "Pad")
pad1.Profile = sketch1
pad1.Length = 3
pad1.Reversed = True

# Sketch on XZ plane
sketch2 = body.newObject("Sketcher::SketchObject", "Sketch001")
sketch2.AttachmentSupport = (doc.getObject("XZ_Plane"), [""])
sketch2.MapMode = "FlatFace"
sketch2.addGeometry(Part.ArcOfCircle(Part.Circle(V(6, -23, 0), V(0, 0, 1), 2.5), math.radians(-90), math.radians(0)), False)  # 0
sketch2.addGeometry(Part.LineSegment(V(6, -25.5, 0), V(-6, -25.5, 0)), False)  # 1
sketch2.addGeometry(Part.ArcOfCircle(Part.Circle(V(-6, -23, 0), V(0, 0, 1), 2.5), math.radians(180), math.radians(270)), False)  # 2
sketch2.addGeometry(Part.LineSegment(V(-8.5, -23, 0), V(-8.5, 23, 0)), False)  # 3
sketch2.addGeometry(Part.ArcOfCircle(Part.Circle(V(-6, 23, 0), V(0, 0, 1), 2.5), math.radians(90), math.radians(180)), False)  # 4
sketch2.addGeometry(Part.LineSegment(V(-6, 25.5, 0), V(6, 25.5, 0)), False)  # 5
sketch2.addGeometry(Part.ArcOfCircle(Part.Circle(V(6, 23, 0), V(0, 0, 1), 2.5), math.radians(0), math.radians(90)), False)  # 6
sketch2.addGeometry(Part.LineSegment(V(8.5, 23, 0), V(8.5, -23, 0)), False)  # 7
add_polygon(sketch2, [(6.5, -23.5), (6.5, -10.5), (-6.5, -10.5), (-6.5, -23.5)])  # lines 8-11
add_polygon(sketch2, [(6.5, -6.5), (6.5, 6.5), (-6.5, 6.5), (-6.5, -6.5)])  # lines 12-15
add_polygon(sketch2, [(6.5, 23.5), (-6.5, 23.5), (-6.5, 10.5), (6.5, 10.5)])  # lines 16-19
sketch2.addConstraint(Sketcher.Constraint("Tangent", 0, 1, 1, 1))
sketch2.addConstraint(Sketcher.Constraint("Tangent", 1, 2, 2, 2))
sketch2.addConstraint(Sketcher.Constraint("Tangent", 2, 1, 3, 1))
sketch2.addConstraint(Sketcher.Constraint("Tangent", 3, 2, 4, 2))
sketch2.addConstraint(Sketcher.Constraint("Tangent", 4, 1, 5, 1))
sketch2.addConstraint(Sketcher.Constraint("Tangent", 5, 2, 6, 2))
sketch2.addConstraint(Sketcher.Constraint("Tangent", 6, 1, 7, 1))
sketch2.addConstraint(Sketcher.Constraint("Tangent", 7, 2, 0, 2))
sketch2.addConstraint(Sketcher.Constraint("Horizontal", 1))
sketch2.addConstraint(Sketcher.Constraint("Vertical", 3))
sketch2.addConstraint(Sketcher.Constraint("Horizontal", 5))
sketch2.addConstraint(Sketcher.Constraint("Vertical", 7))
sketch2.addConstraint(Sketcher.Constraint("Vertical", 8))
sketch2.addConstraint(Sketcher.Constraint("Horizontal", 9))
sketch2.addConstraint(Sketcher.Constraint("Vertical", 10))
sketch2.addConstraint(Sketcher.Constraint("Horizontal", 11))
sketch2.addConstraint(Sketcher.Constraint("Vertical", 12))
sketch2.addConstraint(Sketcher.Constraint("Horizontal", 13))
sketch2.addConstraint(Sketcher.Constraint("Vertical", 14))
sketch2.addConstraint(Sketcher.Constraint("Horizontal", 15))
sketch2.addConstraint(Sketcher.Constraint("Horizontal", 16))
sketch2.addConstraint(Sketcher.Constraint("Vertical", 17))
sketch2.addConstraint(Sketcher.Constraint("Horizontal", 18))
sketch2.addConstraint(Sketcher.Constraint("Vertical", 19))
sketch2.addConstraint(Sketcher.Constraint("Equal", 0, 2))
sketch2.addConstraint(Sketcher.Constraint("Equal", 2, 4))
sketch2.addConstraint(Sketcher.Constraint("Equal", 4, 6))
sketch2.addConstraint(Sketcher.Constraint("Symmetric", 0, 3, 4, 3, -1, 1))
sketch2.addConstraint(Sketcher.Constraint("Symmetric", 12, 2, 14, 2, -1, 1))
sketch2.addConstraint(Sketcher.Constraint("Symmetric", 11, 2, 16, 2, -1, 1))
sketch2.addConstraint(Sketcher.Constraint("Symmetric", 9, 2, 18, 2, -1, 1))
sketch2.addConstraint(Sketcher.Constraint("Vertical", 11, 2, 12, 2))
sketch2.addConstraint(Sketcher.Constraint("Vertical", 10, 2, 13, 2))
sketch2.addConstraint(Sketcher.Constraint("Equal", 18, 8))
sketch2.addConstraint(Sketcher.Constraint("Equal", 10, 12))
sketch2.addConstraint(Sketcher.Constraint("Radius", 0, Q("2.5 mm")))
sketch2.addConstraint(Sketcher.Constraint("DistanceX", 1, 2, 1, 1, Q("12 mm")))
sketch2.addConstraint(Sketcher.Constraint("DistanceX", 9, 2, 9, 1, Q("13 mm")))
sketch2.addConstraint(Sketcher.Constraint("DistanceY", 1, 2, 10, 2, Q("2 mm")))
sketch2.addConstraint(Sketcher.Constraint("DistanceY", 8, 2, 12, 2, Q("17 mm")))
pad2 = body.newObject("PartDesign::Pad", "Pad001")
pad2.Profile = sketch2
pad2.Length = 5.5
pad2.Reversed = True

doc.recompute()
